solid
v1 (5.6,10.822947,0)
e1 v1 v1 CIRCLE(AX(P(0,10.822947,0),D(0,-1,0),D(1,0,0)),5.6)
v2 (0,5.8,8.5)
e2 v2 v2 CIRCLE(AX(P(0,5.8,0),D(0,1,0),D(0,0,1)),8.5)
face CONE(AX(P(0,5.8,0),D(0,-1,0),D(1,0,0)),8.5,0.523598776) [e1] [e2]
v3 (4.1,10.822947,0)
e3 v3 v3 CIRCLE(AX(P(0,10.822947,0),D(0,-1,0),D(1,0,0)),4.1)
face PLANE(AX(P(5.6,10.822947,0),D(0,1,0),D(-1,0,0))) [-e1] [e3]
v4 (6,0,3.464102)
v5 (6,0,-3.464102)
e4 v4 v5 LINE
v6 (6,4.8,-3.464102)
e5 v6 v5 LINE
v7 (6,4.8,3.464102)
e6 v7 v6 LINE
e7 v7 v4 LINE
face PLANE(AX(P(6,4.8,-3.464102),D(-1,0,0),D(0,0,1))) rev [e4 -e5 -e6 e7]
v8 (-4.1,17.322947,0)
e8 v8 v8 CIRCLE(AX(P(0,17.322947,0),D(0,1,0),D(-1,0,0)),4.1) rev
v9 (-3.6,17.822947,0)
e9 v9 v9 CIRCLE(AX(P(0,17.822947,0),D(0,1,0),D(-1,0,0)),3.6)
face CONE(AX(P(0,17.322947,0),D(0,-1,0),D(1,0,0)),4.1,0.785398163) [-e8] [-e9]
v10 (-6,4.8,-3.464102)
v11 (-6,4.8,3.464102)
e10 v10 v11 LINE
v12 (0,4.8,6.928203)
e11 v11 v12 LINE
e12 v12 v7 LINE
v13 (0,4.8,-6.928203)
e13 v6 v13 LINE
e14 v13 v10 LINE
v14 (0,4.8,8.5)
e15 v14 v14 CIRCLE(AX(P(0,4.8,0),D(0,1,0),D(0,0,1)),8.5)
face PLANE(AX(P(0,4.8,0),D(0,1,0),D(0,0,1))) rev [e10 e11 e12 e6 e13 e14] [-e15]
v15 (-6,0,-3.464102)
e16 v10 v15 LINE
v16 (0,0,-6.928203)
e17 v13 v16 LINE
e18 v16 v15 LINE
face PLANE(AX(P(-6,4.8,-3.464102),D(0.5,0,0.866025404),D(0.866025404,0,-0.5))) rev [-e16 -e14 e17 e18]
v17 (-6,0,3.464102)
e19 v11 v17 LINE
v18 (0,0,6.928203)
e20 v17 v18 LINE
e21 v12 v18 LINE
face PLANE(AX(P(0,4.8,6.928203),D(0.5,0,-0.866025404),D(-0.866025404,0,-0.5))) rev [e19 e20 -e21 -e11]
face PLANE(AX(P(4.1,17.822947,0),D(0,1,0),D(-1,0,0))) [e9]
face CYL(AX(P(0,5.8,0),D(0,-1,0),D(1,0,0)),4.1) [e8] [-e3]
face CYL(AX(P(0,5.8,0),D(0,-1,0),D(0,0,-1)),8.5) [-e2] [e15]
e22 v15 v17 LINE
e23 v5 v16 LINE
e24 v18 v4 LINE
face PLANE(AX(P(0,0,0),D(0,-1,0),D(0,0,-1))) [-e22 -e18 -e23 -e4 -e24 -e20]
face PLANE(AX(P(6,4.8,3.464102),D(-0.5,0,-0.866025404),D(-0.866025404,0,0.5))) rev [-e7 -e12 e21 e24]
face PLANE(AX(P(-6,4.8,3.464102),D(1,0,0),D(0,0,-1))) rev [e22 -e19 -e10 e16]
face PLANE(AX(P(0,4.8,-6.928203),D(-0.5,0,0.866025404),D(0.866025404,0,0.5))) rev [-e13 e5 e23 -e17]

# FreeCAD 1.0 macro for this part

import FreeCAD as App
import Part
import Sketcher

V = App.Vector
Q = App.Units.Quantity


def edges_at(feature, points):
    """Names of the edges that pass closest to the given points."""
    edges = feature.Shape.Edges
    near = lambda p: min(range(len(edges)), key=lambda i: edges[i].distToShape(Part.Vertex(*p))[0])
    return sorted({f"Edge{near(p) + 1}" for p in points})

doc = App.newDocument("Part")
body = doc.addObject("PartDesign::Body", "Body")

# Sketch on XZ plane
sketch1 = body.newObject("Sketcher::SketchObject", "Sketch")
sketch1.AttachmentSupport = (doc.getObject("XZ_Plane"), [""])
sketch1.MapMode = "FlatFace"
sketch1.addGeometry([
    Part.LineSegment(V(6, -3.464102, 0), V(0, -6.928203, 0)),  # 0
    Part.LineSegment(V(0, -6.928203, 0), V(-6, -3.464102, 0)),  # 1
    Part.LineSegment(V(-6, -3.464102, 0), V(-6, 3.464102, 0)),  # 2
    Part.LineSegment(V(-6, 3.464102, 0), V(0, 6.928203, 0)),  # 3
    Part.LineSegment(V(0, 6.928203, 0), V(6, 3.464102, 0)),  # 4
    Part.LineSegment(V(6, 3.464102, 0), V(6, -3.464102, 0)),  # 5
], False)
sketch1.addConstraint([
    Sketcher.Constraint("Coincident", 0, 2, 1, 1),
    Sketcher.Constraint("Coincident", 1, 2, 2, 1),
    Sketcher.Constraint("Coincident", 2, 2, 3, 1),
    Sketcher.Constraint("Coincident", 3, 2, 4, 1),
    Sketcher.Constraint("Coincident", 4, 2, 5, 1),
    Sketcher.Constraint("Coincident", 5, 2, 0, 1),
    Sketcher.Constraint("Vertical", 2),
    Sketcher.Constraint("Vertical", 5),
    Sketcher.Constraint("Symmetric", 0, 2, 3, 2, -1, 1),
    Sketcher.Constraint("Symmetric", 1, 2, 4, 2, -1, 1),
    Sketcher.Constraint("PointOnObject", 0, 2, -2),
    Sketcher.Constraint("Parallel", 0, 3),
    Sketcher.Constraint("Horizontal", 2, 2, 4, 2),
    Sketcher.Constraint("Angle", 0, Q("-150 deg")),
    Sketcher.Constraint("DistanceX", 1, 2, -1, 1, Q("6 mm")),
    Sketcher.Constraint("DistanceY", 1, 2, -1, 1, Q("3.464102 mm")),
])
pad1 = body.newObject("PartDesign::Pad", "Pad")
pad1.Profile = sketch1
pad1.Length = 4.8
pad1.Reversed = True

# Sketch on XZ plane
sketch2 = body.newObject("Sketcher::SketchObject", "Sketch001")
sketch2.AttachmentSupport = (doc.getObject("XZ_Plane"), [""])
sketch2.MapMode = "FlatFace"
sketch2.AttachmentOffset = App.Placement(V(0, 0, -4.8), App.Rotation())
sketch2.addGeometry(Part.Circle(V(0, 0, 0), V(0, 0, 1), 8.5), False)
sketch2.addConstraint([
    Sketcher.Constraint("Coincident", 0, 3, -1, 1),
    Sketcher.Constraint("Diameter", 0, Q("17 mm")),
])
pad2 = body.newObject("PartDesign::Pad", "Pad001")
pad2.Profile = sketch2
pad2.Length = 1
pad2.Reversed = True

# Sketch on XY plane
sketch3 = body.newObject("Sketcher::SketchObject", "Sketch002")
sketch3.AttachmentSupport = (doc.getObject("XY_Plane"), [""])
sketch3.MapMode = "FlatFace"
sketch3.addGeometry([
    Part.LineSegment(V(0, 5.8, 0), V(8.5, 5.8, 0)),  # 0
    Part.LineSegment(V(8.5, 5.8, 0), V(5.6, 10.822947, 0)),  # 1
    Part.LineSegment(V(5.6, 10.822947, 0), V(4.1, 10.822947, 0)),  # 2
    Part.LineSegment(V(4.1, 10.822947, 0), V(4.1, 17.822947, 0)),  # 3
    Part.LineSegment(V(4.1, 17.822947, 0), V(0, 17.822947, 0)),  # 4
    Part.LineSegment(V(0, 17.822947, 0), V(0, 5.8, 0)),  # 5
], False)
sketch3.addConstraint([
    Sketcher.Constraint("Coincident", 0, 2, 1, 1),
    Sketcher.Constraint("Coincident", 1, 2, 2, 1),
    Sketcher.Constraint("Coincident", 2, 2, 3, 1),
    Sketcher.Constraint("Coincident", 3, 2, 4, 1),
    Sketcher.Constraint("Coincident", 4, 2, 5, 1),
    Sketcher.Constraint("Coincident", 5, 2, 0, 1),
    Sketcher.Constraint("Horizontal", 0),
    Sketcher.Constraint("Horizontal", 2),
    Sketcher.Constraint("Vertical", 3),
    Sketcher.Constraint("Horizontal", 4),
    Sketcher.Constraint("Vertical", 5),
    Sketcher.Constraint("PointOnObject", 4, 2, -2),
    Sketcher.Constraint("DistanceY", 3, 1, 3, 2, Q("7 mm")),
    Sketcher.Constraint("Angle", 1, Q("120 deg")),
    Sketcher.Constraint("DistanceX", 0, 1, 0, 2, Q("8.5 mm")),
    Sketcher.Constraint("DistanceX", 2, 2, 2, 1, Q("1.5 mm")),
    Sketcher.Constraint("DistanceX", 4, 2, 4, 1, Q("4.1 mm")),
    Sketcher.Constraint("DistanceY", -1, 1, 0, 2, Q("5.8 mm")),
])
revolution = body.newObject("PartDesign::Revolution", "Revolution")
revolution.Profile = sketch3
revolution.ReferenceAxis = (sketch3, ["V_Axis"])
revolution.Angle = 360
doc.recompute()

chamfer = body.newObject("PartDesign::Chamfer", "Chamfer")
chamfer.Base = (revolution, edges_at(revolution, [(-4.1, 17.823, 0)]))
chamfer.Size = 0.5

doc.recompute()
